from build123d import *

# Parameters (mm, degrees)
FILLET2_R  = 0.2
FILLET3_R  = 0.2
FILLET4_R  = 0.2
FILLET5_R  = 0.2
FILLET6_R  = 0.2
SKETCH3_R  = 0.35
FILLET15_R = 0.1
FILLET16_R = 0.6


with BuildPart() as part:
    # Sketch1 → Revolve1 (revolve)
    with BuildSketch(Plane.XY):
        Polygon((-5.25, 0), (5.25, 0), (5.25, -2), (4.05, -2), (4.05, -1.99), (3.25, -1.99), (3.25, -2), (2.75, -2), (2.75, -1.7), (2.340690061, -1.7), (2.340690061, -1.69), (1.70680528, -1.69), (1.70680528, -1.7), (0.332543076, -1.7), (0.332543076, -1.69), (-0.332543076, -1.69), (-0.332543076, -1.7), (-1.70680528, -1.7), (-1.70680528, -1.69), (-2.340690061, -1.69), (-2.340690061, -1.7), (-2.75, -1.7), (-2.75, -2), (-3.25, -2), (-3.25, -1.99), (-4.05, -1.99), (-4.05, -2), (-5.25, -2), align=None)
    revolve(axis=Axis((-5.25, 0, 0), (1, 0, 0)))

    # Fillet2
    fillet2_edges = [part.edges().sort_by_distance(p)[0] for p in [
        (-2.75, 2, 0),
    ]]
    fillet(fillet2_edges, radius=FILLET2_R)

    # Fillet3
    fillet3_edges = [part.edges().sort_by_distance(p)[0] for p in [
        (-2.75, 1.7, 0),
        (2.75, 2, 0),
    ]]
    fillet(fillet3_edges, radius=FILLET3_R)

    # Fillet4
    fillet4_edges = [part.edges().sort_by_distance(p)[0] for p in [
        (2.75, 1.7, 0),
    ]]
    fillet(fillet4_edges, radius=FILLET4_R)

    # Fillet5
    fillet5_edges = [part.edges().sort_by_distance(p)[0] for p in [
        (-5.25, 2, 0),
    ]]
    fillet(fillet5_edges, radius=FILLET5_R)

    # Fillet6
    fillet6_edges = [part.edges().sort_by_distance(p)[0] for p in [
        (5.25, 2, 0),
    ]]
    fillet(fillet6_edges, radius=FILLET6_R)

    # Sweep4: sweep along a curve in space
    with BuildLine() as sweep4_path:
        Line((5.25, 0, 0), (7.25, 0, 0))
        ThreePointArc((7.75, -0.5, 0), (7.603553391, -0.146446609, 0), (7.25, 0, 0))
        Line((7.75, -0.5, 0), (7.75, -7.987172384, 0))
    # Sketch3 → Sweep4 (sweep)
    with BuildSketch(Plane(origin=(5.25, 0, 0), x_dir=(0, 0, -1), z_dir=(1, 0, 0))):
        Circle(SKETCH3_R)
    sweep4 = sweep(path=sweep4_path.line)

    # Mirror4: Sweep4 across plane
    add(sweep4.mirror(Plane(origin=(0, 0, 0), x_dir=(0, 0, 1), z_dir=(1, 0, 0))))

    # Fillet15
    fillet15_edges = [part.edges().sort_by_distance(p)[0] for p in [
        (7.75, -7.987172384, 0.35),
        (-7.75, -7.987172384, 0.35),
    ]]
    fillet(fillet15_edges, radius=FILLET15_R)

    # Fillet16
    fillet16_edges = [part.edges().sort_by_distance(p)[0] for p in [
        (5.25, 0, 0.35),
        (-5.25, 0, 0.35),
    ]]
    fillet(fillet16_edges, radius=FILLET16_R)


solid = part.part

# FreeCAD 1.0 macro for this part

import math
import FreeCAD as App
import Part
import Sketcher
Q = App.Units.Quantity


def edges_at(feature, points):
    """Names of the edges that pass closest to the given points."""
    edges = feature.Shape.Edges
    near = lambda p: min(range(len(edges)), key=lambda i: edges[i].distToShape(Part.Vertex(*p))[0])
    return sorted({f"Edge{near(p) + 1}" for p in points})


def add_polygon(sketch, points):
    """Adds a closed chain of lines whose ends are joined by coincident constraints."""
    first, n = sketch.GeometryCount, len(points)
    for a, b in zip(points, points[1:] + points[:1]):
        sketch.addGeometry(Part.LineSegment(App.Vector(*a, 0), App.Vector(*b, 0)), False)
    for i in range(n):
        sketch.addConstraint(Sketcher.Constraint("Coincident", first + i, 2, first + (i + 1) % n, 1))

doc = App.newDocument("Part")
params = doc.addObject("Spreadsheet::Sheet", "Params")
for row, (alias, value) in enumerate([
    ("sketch1_height", "2 mm"),
    ("sketch1_width", "10.5 mm"),
    ("sketch1_width2", "1.2 mm"),
    ("sketch1_width3", "0.8 mm"),
    ("sketch1_width4", "0.5 mm"),
    ("revolution_angle", "360 deg"),
    ("fillet_radius", "0.2 mm"),
    ("fillet2_radius", "0.2 mm"),
    ("fillet3_radius", "0.2 mm"),
    ("fillet4_radius", "0.2 mm"),
    ("fillet5_radius", "0.2 mm"),
    ("sketch2_diameter", "0.7 mm"),
    ("sketch3_radius", "0.5 mm"),
    ("sketch3_width", "2 mm"),
    ("fillet6_radius", "0.1 mm"),
    ("fillet7_radius", "0.6 mm"),
], start=1):
    params.set(f"A{row}", alias)
    params.set(f"B{row}", "=" + value)
    params.setAlias(f"B{row}", alias)

body = doc.addObject("PartDesign::Body", "Body")

# Sketch on XY plane
sketch1 = doc.addObject("Sketcher::SketchObject", "Sketch")
body.addObject(sketch1)
sketch1.AttachmentSupport = (doc.XY_Plane, [""])
sketch1.MapMode = "FlatFace"
add_polygon(sketch1, [(5.25, 0), (-5.25, 0), (-5.25, -2), (-4.05, -2), (-4.05, -1.99), (-3.25, -1.99), (-3.25, -2), (-2.75, -2), (-2.75, -1.7), (-2.341, -1.7), (-2.341, -1.69), (-1.707, -1.69), (-1.707, -1.7), (-0.333, -1.7), (-0.333, -1.69), (0.333, -1.69), (0.333, -1.7), (1.707, -1.7), (1.707, -1.69), (2.341, -1.69), (2.341, -1.7), (2.75, -1.7), (2.75, -2), (3.25, -2), (3.25, -1.99), (4.05, -1.99), (4.05, -2), (5.25, -2)])  # lines 0-27
sketch1.addConstraint(Sketcher.Constraint("Horizontal", 0))
sketch1.addConstraint(Sketcher.Constraint("Vertical", 1))
sketch1.addConstraint(Sketcher.Constraint("Horizontal", 2))
sketch1.addConstraint(Sketcher.Constraint("Vertical", 3))
sketch1.addConstraint(Sketcher.Constraint("Horizontal", 4))
sketch1.addConstraint(Sketcher.Constraint("Vertical", 5))
sketch1.addConstraint(Sketcher.Constraint("Horizontal", 6))
sketch1.addConstraint(Sketcher.Constraint("Vertical", 7))
sketch1.addConstraint(Sketcher.Constraint("Horizontal", 8))
sketch1.addConstraint(Sketcher.Constraint("Vertical", 9))
sketch1.addConstraint(Sketcher.Constraint("Horizontal", 10))
sketch1.addConstraint(Sketcher.Constraint("Vertical", 11))
sketch1.addConstraint(Sketcher.Constraint("Horizontal", 12))
sketch1.addConstraint(Sketcher.Constraint("Vertical", 13))
sketch1.addConstraint(Sketcher.Constraint("Horizontal", 14))
sketch1.addConstraint(Sketcher.Constraint("Vertical", 15))
sketch1.addConstraint(Sketcher.Constraint("Horizontal", 16))
sketch1.addConstraint(Sketcher.Constraint("Vertical", 17))
sketch1.addConstraint(Sketcher.Constraint("Horizontal", 18))
sketch1.addConstraint(Sketcher.Constraint("Vertical", 19))
sketch1.addConstraint(Sketcher.Constraint("Horizontal", 20))
sketch1.addConstraint(Sketcher.Constraint("Vertical", 21))
sketch1.addConstraint(Sketcher.Constraint("Horizontal", 22))
sketch1.addConstraint(Sketcher.Constraint("Vertical", 23))
sketch1.addConstraint(Sketcher.Constraint("Horizontal", 24))
sketch1.addConstraint(Sketcher.Constraint("Vertical", 25))
sketch1.addConstraint(Sketcher.Constraint("Horizontal", 26))
sketch1.addConstraint(Sketcher.Constraint("Vertical", 27))
sketch1.addConstraint(Sketcher.Constraint("Symmetric", 0, 2, 27, 2, -1, 1))
sketch1.addConstraint(Sketcher.Constraint("Symmetric", 12, 2, 15, 2, -2))
sketch1.addConstraint(Sketcher.Constraint("Symmetric", 10, 2, 17, 2, -2))
sketch1.addConstraint(Sketcher.Constraint("Symmetric", 8, 2, 19, 2, -2))
sketch1.addConstraint(Sketcher.Constraint("Symmetric", 6, 2, 21, 2, -2))
sketch1.addConstraint(Sketcher.Constraint("Symmetric", 4, 2, 23, 2, -2))
sketch1.addConstraint(Sketcher.Constraint("Symmetric", 2, 2, 25, 2, -2))
sketch1.addConstraint(Sketcher.Constraint("Horizontal", 2, 2, 5, 2))
sketch1.addConstraint(Sketcher.Constraint("Horizontal", 8, 2, 11, 2))
sketch1.addConstraint(Sketcher.Constraint("Horizontal", 10, 2, 13, 2))
sketch1.addConstraint(Sketcher.Constraint("Equal", 5, 9))
sketch1.addConstraint(Sketcher.Constraint("DistanceY", 1, 2, 1, 1, Q("2 mm")))
sketch1.addConstraint(Sketcher.Constraint("DistanceX", 0, 2, 0, 1, Q("10.5 mm")))
sketch1.addConstraint(Sketcher.Constraint("DistanceX", 2, 1, 2, 2, Q("1.2 mm")))
sketch1.addConstraint(Sketcher.Constraint("DistanceX", 4, 1, 4, 2, Q("0.8 mm")))
sketch1.addConstraint(Sketcher.Constraint("DistanceX", 6, 1, 6, 2, Q("0.5 mm")))
sketch1.addConstraint(Sketcher.Constraint("DistanceY", 7, 1, 7, 2, Q("0.3 mm")))
sketch1.addConstraint(Sketcher.Constraint("DistanceY", 3, 1, 3, 2, Q("0.01 mm")))
sketch1.addConstraint(Sketcher.Constraint("DistanceX", 8, 1, 8, 2, Q("0.40931 mm")))
sketch1.addConstraint(Sketcher.Constraint("DistanceX", 10, 1, 10, 2, Q("0.633885 mm")))
sketch1.addConstraint(Sketcher.Constraint("DistanceX", 12, 1, 12, 2, Q("1.374262 mm")))
sketch1.setExpression("Constraints[67]", "Params.sketch1_height")
sketch1.setExpression("Constraints[68]", "Params.sketch1_width")
sketch1.setExpression("Constraints[69]", "Params.sketch1_width2")
sketch1.setExpression("Constraints[70]", "Params.sketch1_width3")
sketch1.setExpression("Constraints[71]", "Params.sketch1_width4")
revolution = doc.addObject("PartDesign::Revolution", "Revolution")
body.addObject(revolution)
revolution.Profile = sketch1
revolution.ReferenceAxis = (sketch1, ["H_Axis"])
revolution.setExpression("Angle", "Params.revolution_angle")
doc.recompute()

fillet = doc.addObject("PartDesign::Fillet", "Fillet")
body.addObject(fillet)
fillet.Base = (revolution, edges_at(revolution, [(-2.75, 2, 0)]))
fillet.setExpression("Radius", "Params.fillet_radius")
doc.recompute()

fillet2 = doc.addObject("PartDesign::Fillet", "Fillet001")
body.addObject(fillet2)
fillet2.Base = (fillet, edges_at(fillet, [(-2.75, 1.7, 0), (2.75, 2, 0)]))
fillet2.setExpression("Radius", "Params.fillet2_radius")
doc.recompute()

fillet3 = doc.addObject("PartDesign::Fillet", "Fillet002")
body.addObject(fillet3)
fillet3.Base = (fillet2, edges_at(fillet2, [(2.75, 1.7, 0)]))
fillet3.setExpression("Radius", "Params.fillet3_radius")
doc.recompute()

fillet4 = doc.addObject("PartDesign::Fillet", "Fillet003")
body.addObject(fillet4)
fillet4.Base = (fillet3, edges_at(fillet3, [(-5.25, 2, 0)]))
fillet4.setExpression("Radius", "Params.fillet4_radius")
doc.recompute()

fillet5 = doc.addObject("PartDesign::Fillet", "Fillet004")
body.addObject(fillet5)
fillet5.Base = (fillet4, edges_at(fillet4, [(5.25, 2, 0)]))
fillet5.setExpression("Radius", "Params.fillet5_radius")

# Sketch on YZ plane
sketch2 = doc.addObject("Sketcher::SketchObject", "Sketch001")
body.addObject(sketch2)
sketch2.AttachmentSupport = (doc.YZ_Plane, [""])
sketch2.MapMode = "FlatFace"
sketch2.AttachmentOffset = App.Placement(App.Vector(0, 0, 5.25), App.Rotation())
sketch2.addGeometry(Part.Circle(App.Vector(0, 0, 0), App.Vector(0, 0, 1), 0.35), False)
sketch2.addConstraint(Sketcher.Constraint("Coincident", 0, 3, -1, 1))
sketch2.addConstraint(Sketcher.Constraint("Diameter", 0, Q("0.7 mm")))
sketch2.setExpression("Constraints[1]", "Params.sketch2_diameter")

# Sketch on XY plane
sketch3 = doc.addObject("Sketcher::SketchObject", "Sketch002")
body.addObject(sketch3)
sketch3.AttachmentSupport = (doc.XY_Plane, [""])
sketch3.MapMode = "FlatFace"
sketch3.addGeometry(Part.LineSegment(App.Vector(5.25, 0, 0), App.Vector(7.25, 0, 0)), False)
sketch3.addGeometry(Part.ArcOfCircle(Part.Circle(App.Vector(7.25, -0.5, 0), App.Vector(0, 0, 1), 0.5), math.radians(0), math.radians(90)), False)
sketch3.addGeometry(Part.LineSegment(App.Vector(7.75, -0.5, 0), App.Vector(7.75, -7.99, 0)), False)
sketch3.addConstraint(Sketcher.Constraint("Tangent", 0, 2, 1, 2))
sketch3.addConstraint(Sketcher.Constraint("Tangent", 1, 1, 2, 1))
sketch3.addConstraint(Sketcher.Constraint("Horizontal", 0))
sketch3.addConstraint(Sketcher.Constraint("Vertical", 2))
sketch3.addConstraint(Sketcher.Constraint("PointOnObject", 0, 1, -1))
sketch3.addConstraint(Sketcher.Constraint("Radius", 1, Q("0.5 mm")))
sketch3.addConstraint(Sketcher.Constraint("DistanceX", 0, 1, 0, 2, Q("2 mm")))
sketch3.addConstraint(Sketcher.Constraint("DistanceX", -1, 1, 1, 3, Q("7.25 mm")))
sketch3.addConstraint(Sketcher.Constraint("DistanceY", 2, 2, 2, 1, Q("7.487172 mm")))
sketch3.setExpression("Constraints[5]", "Params.sketch3_radius")
sketch3.setExpression("Constraints[6]", "Params.sketch3_width")
doc.recompute()

additivepipe = doc.addObject("PartDesign::AdditivePipe", "AdditivePipe")
body.addObject(additivepipe)
additivepipe.Profile = sketch2
additivepipe.Spine = (sketch3, ["Edge1", "Edge2", "Edge3"])
doc.recompute()

mirrored = doc.addObject("PartDesign::Mirrored", "Mirrored")
body.addObject(mirrored)
mirrored.Originals = [additivepipe]
mirrored.MirrorPlane = (doc.YZ_Plane, [""])
body.Tip = mirrored
doc.recompute()

fillet6 = doc.addObject("PartDesign::Fillet", "Fillet005")
body.addObject(fillet6)
fillet6.Base = (mirrored, edges_at(mirrored, [(7.75, -7.987, 0.35), (-7.75, -7.987, 0.35)]))
fillet6.setExpression("Radius", "Params.fillet6_radius")
doc.recompute()

fillet7 = doc.addObject("PartDesign::Fillet", "Fillet006")
body.addObject(fillet7)
fillet7.Base = (fillet6, edges_at(fillet6, [(5.25, 0, 0.35), (-5.25, 0, 0.35)]))
fillet7.setExpression("Radius", "Params.fillet7_radius")

doc.recompute()
